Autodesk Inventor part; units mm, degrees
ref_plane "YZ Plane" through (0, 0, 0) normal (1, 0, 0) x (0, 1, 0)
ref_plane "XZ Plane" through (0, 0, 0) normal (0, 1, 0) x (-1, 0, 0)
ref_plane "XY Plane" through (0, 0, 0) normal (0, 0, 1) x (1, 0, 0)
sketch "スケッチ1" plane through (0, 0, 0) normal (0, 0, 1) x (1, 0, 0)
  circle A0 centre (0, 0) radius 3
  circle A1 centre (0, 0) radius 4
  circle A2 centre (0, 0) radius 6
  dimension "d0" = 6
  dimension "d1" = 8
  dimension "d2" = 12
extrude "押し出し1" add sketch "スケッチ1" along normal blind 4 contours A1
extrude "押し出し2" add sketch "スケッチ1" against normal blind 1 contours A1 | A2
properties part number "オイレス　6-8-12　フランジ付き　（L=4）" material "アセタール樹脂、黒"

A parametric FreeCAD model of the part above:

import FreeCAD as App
import Part
import Sketcher

V = App.Vector

doc = App.newDocument("Part")
body = doc.addObject("PartDesign::Body", "Body")

sketch1 = body.newObject("Sketcher::SketchObject", "Sketch")
sketch1.AttachmentSupport = (doc.getObject("XY_Plane"), [""])
sketch1.MapMode = "FlatFace"
sketch1.addGeometry(Part.Circle(V(0, 0, 0), V(0, 0, 1), 4), False)
sketch1.addGeometry(Part.Circle(V(0, 0, 0), V(0, 0, 1), 3), False)
sketch1.addConstraint(Sketcher.Constraint("Coincident", 0, 3, -1, 1))
sketch1.addConstraint(Sketcher.Constraint("Coincident", 1, 3, -1, 1))
sketch1.addConstraint(Sketcher.Constraint("Diameter", 0, 8.0))
sketch1.addConstraint(Sketcher.Constraint("Diameter", 1, 6.0))
pad1 = body.newObject("PartDesign::Pad", "Pad")
pad1.Profile = sketch1
pad1.Length = 4

sketch2 = body.newObject("Sketcher::SketchObject", "Sketch001")
sketch2.AttachmentSupport = (doc.getObject("XY_Plane"), [""])
sketch2.MapMode = "FlatFace"
sketch2.addGeometry(Part.Circle(V(0, 0, 0), V(0, 0, 1), 6), False)
sketch2.addGeometry(Part.Circle(V(0, 0, 0), V(0, 0, 1), 3), False)
sketch2.addConstraint(Sketcher.Constraint("Coincident", 0, 3, -1, 1))
sketch2.addConstraint(Sketcher.Constraint("Coincident", 1, 3, -1, 1))
sketch2.addConstraint(Sketcher.Constraint("Diameter", 0, 12.0))
sketch2.addConstraint(Sketcher.Constraint("Diameter", 1, 6.0))
pad2 = body.newObject("PartDesign::Pad", "Pad001")
pad2.Profile = sketch2
pad2.Length = 1
pad2.Reversed = True

doc.recompute()
